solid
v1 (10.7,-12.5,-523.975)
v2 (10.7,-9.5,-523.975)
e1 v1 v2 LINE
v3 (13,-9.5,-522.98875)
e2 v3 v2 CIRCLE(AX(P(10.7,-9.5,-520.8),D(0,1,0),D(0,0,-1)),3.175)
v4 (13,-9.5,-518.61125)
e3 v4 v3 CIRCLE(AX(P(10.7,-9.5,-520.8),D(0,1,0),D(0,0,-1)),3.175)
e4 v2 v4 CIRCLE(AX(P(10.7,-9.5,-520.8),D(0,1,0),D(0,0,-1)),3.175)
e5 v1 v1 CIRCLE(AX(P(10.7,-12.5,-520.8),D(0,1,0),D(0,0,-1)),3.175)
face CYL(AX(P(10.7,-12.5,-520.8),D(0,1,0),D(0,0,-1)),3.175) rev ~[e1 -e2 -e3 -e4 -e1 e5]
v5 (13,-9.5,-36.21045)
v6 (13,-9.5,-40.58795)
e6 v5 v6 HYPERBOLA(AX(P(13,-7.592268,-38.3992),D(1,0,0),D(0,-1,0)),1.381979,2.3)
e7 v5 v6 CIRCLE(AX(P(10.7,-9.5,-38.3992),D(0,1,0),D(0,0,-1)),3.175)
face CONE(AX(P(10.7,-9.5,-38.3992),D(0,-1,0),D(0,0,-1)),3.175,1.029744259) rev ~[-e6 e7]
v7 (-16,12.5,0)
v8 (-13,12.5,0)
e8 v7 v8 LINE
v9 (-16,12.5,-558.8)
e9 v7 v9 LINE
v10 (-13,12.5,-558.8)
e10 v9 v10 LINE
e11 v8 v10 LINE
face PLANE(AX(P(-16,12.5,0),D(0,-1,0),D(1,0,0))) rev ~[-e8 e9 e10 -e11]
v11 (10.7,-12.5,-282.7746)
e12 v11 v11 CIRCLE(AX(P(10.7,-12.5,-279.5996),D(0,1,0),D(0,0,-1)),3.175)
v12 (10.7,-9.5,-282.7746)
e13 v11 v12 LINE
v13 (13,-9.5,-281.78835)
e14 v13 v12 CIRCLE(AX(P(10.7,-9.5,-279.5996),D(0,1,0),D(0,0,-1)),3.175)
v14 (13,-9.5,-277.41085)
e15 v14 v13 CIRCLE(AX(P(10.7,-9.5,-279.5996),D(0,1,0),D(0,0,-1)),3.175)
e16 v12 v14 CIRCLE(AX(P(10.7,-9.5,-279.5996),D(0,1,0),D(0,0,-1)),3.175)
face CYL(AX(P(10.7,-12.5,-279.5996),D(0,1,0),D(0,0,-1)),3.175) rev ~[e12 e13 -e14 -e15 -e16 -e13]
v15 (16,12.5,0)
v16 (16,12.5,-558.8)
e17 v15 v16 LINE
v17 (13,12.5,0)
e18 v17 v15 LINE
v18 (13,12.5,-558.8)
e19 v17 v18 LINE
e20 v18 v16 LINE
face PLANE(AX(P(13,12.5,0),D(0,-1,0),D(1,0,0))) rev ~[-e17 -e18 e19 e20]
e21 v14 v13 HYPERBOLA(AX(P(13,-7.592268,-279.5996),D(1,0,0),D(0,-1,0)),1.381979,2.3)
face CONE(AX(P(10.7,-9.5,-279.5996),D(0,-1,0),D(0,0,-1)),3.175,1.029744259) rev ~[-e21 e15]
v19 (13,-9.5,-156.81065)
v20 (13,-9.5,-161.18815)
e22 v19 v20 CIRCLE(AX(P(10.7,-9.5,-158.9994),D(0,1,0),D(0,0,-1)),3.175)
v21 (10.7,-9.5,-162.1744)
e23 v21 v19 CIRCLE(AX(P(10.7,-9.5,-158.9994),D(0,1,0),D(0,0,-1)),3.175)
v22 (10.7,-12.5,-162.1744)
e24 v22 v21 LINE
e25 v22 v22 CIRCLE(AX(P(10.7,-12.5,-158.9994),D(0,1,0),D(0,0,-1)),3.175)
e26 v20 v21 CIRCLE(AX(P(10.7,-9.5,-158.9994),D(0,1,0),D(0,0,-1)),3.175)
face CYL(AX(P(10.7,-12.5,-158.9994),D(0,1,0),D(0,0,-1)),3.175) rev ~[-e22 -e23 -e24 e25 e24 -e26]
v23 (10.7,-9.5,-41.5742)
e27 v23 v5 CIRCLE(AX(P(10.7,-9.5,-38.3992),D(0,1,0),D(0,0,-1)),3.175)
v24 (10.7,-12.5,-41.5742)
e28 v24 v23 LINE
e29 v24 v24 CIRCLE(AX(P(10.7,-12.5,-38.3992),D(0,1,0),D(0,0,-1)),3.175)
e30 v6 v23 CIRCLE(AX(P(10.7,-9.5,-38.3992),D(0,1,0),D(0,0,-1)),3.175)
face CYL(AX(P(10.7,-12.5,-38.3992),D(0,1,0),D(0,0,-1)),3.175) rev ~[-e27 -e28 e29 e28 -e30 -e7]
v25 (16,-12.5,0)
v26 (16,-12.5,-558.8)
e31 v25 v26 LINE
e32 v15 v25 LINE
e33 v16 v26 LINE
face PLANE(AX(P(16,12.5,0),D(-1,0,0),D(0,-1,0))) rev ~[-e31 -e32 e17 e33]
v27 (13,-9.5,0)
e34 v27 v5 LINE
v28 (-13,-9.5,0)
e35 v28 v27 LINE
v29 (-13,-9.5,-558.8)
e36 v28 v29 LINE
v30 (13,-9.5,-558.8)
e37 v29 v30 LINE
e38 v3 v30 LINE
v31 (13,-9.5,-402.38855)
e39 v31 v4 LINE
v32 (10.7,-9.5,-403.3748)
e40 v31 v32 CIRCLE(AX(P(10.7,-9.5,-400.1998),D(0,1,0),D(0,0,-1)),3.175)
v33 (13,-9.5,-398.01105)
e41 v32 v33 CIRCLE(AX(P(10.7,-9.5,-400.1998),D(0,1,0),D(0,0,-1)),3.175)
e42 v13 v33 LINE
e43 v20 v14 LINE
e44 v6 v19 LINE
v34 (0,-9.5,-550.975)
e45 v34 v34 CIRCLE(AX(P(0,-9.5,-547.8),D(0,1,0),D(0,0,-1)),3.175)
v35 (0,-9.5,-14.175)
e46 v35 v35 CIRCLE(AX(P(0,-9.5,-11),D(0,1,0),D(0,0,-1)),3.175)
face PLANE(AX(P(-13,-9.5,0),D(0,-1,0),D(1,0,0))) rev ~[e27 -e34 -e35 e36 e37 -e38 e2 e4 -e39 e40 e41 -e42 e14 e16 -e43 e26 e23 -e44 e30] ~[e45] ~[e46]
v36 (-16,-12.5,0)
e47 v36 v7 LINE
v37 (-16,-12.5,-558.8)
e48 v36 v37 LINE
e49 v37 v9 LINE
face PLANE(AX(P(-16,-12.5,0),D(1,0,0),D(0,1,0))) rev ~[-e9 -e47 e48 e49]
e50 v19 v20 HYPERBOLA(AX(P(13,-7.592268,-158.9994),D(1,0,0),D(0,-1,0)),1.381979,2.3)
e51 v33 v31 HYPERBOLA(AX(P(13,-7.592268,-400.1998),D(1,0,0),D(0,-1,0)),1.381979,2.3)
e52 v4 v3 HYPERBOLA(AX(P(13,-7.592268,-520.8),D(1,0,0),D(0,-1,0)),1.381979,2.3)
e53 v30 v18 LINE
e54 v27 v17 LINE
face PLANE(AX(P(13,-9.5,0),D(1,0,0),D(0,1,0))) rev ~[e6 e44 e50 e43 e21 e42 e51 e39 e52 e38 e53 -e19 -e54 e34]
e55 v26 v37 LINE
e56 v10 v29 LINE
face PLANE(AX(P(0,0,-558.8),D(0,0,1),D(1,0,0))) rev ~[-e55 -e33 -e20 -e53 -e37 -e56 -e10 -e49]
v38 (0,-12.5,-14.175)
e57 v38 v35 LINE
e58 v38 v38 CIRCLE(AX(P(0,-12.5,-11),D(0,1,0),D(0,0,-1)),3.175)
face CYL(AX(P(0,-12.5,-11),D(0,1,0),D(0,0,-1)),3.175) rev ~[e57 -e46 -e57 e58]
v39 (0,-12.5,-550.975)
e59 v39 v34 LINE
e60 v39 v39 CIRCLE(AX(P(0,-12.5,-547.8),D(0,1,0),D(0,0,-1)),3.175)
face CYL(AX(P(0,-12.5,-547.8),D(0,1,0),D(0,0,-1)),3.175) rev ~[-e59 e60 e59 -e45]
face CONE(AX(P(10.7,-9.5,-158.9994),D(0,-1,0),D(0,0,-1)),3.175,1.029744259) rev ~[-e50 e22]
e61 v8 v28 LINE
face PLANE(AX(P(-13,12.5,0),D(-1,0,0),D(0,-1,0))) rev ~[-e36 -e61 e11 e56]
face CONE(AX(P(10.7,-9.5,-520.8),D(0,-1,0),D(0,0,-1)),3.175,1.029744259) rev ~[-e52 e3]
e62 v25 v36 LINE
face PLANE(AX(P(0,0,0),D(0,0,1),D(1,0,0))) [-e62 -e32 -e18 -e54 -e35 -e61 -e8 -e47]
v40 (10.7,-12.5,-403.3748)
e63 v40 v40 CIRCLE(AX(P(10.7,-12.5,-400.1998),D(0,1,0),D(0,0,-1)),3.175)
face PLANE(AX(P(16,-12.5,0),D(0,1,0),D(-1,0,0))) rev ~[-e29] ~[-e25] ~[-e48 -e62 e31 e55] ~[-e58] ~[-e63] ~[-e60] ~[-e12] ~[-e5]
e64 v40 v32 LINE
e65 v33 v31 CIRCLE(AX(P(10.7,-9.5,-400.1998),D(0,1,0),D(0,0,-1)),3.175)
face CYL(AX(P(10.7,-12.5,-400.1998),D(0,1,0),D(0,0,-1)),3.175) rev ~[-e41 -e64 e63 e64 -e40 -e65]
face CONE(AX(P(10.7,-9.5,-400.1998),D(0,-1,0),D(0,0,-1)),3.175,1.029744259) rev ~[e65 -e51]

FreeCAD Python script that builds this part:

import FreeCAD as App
import Part
import Sketcher


def add_polygon(sketch, points):
    """Adds a closed chain of lines whose ends are joined by coincident constraints."""
    first, n = sketch.GeometryCount, len(points)
    for a, b in zip(points, points[1:] + points[:1]):
        sketch.addGeometry(Part.LineSegment(App.Vector(*a, 0), App.Vector(*b, 0)), False)
    for i in range(n):
        sketch.addConstraint(Sketcher.Constraint("Coincident", first + i, 2, first + (i + 1) % n, 1))

doc = App.newDocument("Part")
body = doc.addObject("PartDesign::Body", "Body")

sketch1 = body.newObject("Sketcher::SketchObject", "Sketch")
sketch1.AttachmentSupport = (doc.getObject("XY_Plane"), [""])
sketch1.MapMode = "FlatFace"
add_polygon(sketch1, [(-13, 12.5), (-16, 12.5), (-16, -12.5), (16, -12.5), (16, 12.5), (13, 12.5), (13, -9.5), (-13, -9.5)])
sketch1.addConstraint([
    Sketcher.Constraint("Horizontal", 0),
    Sketcher.Constraint("Vertical", 1),
    Sketcher.Constraint("Horizontal", 2),
    Sketcher.Constraint("Vertical", 3),
    Sketcher.Constraint("Horizontal", 4),
    Sketcher.Constraint("Vertical", 5),
    Sketcher.Constraint("Horizontal", 6),
    Sketcher.Constraint("Vertical", 7),
    Sketcher.Constraint("Symmetric", 0, 2, 2, 2, -1, 1),
    Sketcher.Constraint("Symmetric", 4, 2, 7, 2, -2),
    Sketcher.Constraint("DistanceX", 0, 2, 0, 1, 3.0),
    Sketcher.Constraint("DistanceX", 2, 1, 2, 2, 32.0),
    Sketcher.Constraint("DistanceY", 1, 2, 1, 1, 25.0),
    Sketcher.Constraint("DistanceY", 2, 2, 5, 2, 3.0),
])
pad1 = body.newObject("PartDesign::Pad", "Pad")
pad1.Profile = sketch1
pad1.Length = 558.8
pad1.Reversed = True

sketch2 = body.newObject("Sketcher::SketchObject", "Sketch001")
sketch2.AttachmentSupport = (doc.getObject("XZ_Plane"), [""])
sketch2.MapMode = "FlatFace"
sketch2.AttachmentOffset = App.Placement(App.Vector(0, 0, 12.5), App.Rotation())
sketch2.addGeometry([
    Part.Circle(App.Vector(0, -547.8, 0), App.Vector(0, 0, 1), 3.2),
    Part.Circle(App.Vector(0, -11, 0), App.Vector(0, 0, 1), 3.2),
], False)
sketch2.addConstraint([
    Sketcher.Constraint("Equal", 0, 1),
    Sketcher.Constraint("PointOnObject", 0, 3, -2),
    Sketcher.Constraint("PointOnObject", 1, 3, -2),
    Sketcher.Constraint("Diameter", 0, 6.35),
    Sketcher.Constraint("DistanceY", 1, 3, -1, 1, 11.0),
    Sketcher.Constraint("DistanceY", 0, 3, -1, 1, 547.8),
])
doc.recompute()
hole = body.newObject("PartDesign::Hole", "Hole")
hole.Profile = sketch2
hole.ThreadType = "None"
hole.Diameter = 6.35
hole.DepthType = "ThroughAll"

sketch3 = body.newObject("Sketcher::SketchObject", "Sketch002")
sketch3.AttachmentSupport = (doc.getObject("XZ_Plane"), [""])
sketch3.MapMode = "FlatFace"
sketch3.AttachmentOffset = App.Placement(App.Vector(0, 0, 12.5), App.Rotation())
sketch3.addGeometry([
    Part.Circle(App.Vector(10.7, -38.4, 0), App.Vector(0, 0, 1), 3.2),
    Part.Circle(App.Vector(10.7, -159, 0), App.Vector(0, 0, 1), 3.2),
    Part.Circle(App.Vector(10.7, -279.6, 0), App.Vector(0, 0, 1), 3.2),
    Part.Circle(App.Vector(10.7, -400.2, 0), App.Vector(0, 0, 1), 3.2),
    Part.Circle(App.Vector(10.7, -520.8, 0), App.Vector(0, 0, 1), 3.2),
], False)
sketch3.addConstraint([
    Sketcher.Constraint("Equal", 0, 1),
    Sketcher.Constraint("Equal", 1, 2),
    Sketcher.Constraint("Equal", 2, 3),
    Sketcher.Constraint("Equal", 3, 4),
    Sketcher.Constraint("Vertical", 0, 3, 1, 3),
    Sketcher.Constraint("Vertical", 1, 3, 2, 3),
    Sketcher.Constraint("Vertical", 2, 3, 3, 3),
    Sketcher.Constraint("Vertical", 3, 3, 4, 3),
    Sketcher.Constraint("Diameter", 0, 6.35),
    Sketcher.Constraint("DistanceX", -1, 1, 0, 3, 10.7),
    Sketcher.Constraint("DistanceY", 4, 3, -1, 1, 520.8),
    Sketcher.Constraint("DistanceY", 0, 3, -1, 1, 38.3992),
    Sketcher.Constraint("DistanceY", 1, 3, -1, 1, 158.9994),
    Sketcher.Constraint("DistanceY", 2, 3, -1, 1, 279.5996),
    Sketcher.Constraint("DistanceY", 3, 3, -1, 1, 400.1998),
])
doc.recompute()
hole2 = body.newObject("PartDesign::Hole", "Hole001")
hole2.Profile = sketch3
hole2.ThreadType = "None"
hole2.Diameter = 6.35
hole2.DepthType = "Dimension"
hole2.Depth = 3
hole2.DrillPoint = "Angled"
hole2.DrillPointAngle = 118

doc.recompute()
